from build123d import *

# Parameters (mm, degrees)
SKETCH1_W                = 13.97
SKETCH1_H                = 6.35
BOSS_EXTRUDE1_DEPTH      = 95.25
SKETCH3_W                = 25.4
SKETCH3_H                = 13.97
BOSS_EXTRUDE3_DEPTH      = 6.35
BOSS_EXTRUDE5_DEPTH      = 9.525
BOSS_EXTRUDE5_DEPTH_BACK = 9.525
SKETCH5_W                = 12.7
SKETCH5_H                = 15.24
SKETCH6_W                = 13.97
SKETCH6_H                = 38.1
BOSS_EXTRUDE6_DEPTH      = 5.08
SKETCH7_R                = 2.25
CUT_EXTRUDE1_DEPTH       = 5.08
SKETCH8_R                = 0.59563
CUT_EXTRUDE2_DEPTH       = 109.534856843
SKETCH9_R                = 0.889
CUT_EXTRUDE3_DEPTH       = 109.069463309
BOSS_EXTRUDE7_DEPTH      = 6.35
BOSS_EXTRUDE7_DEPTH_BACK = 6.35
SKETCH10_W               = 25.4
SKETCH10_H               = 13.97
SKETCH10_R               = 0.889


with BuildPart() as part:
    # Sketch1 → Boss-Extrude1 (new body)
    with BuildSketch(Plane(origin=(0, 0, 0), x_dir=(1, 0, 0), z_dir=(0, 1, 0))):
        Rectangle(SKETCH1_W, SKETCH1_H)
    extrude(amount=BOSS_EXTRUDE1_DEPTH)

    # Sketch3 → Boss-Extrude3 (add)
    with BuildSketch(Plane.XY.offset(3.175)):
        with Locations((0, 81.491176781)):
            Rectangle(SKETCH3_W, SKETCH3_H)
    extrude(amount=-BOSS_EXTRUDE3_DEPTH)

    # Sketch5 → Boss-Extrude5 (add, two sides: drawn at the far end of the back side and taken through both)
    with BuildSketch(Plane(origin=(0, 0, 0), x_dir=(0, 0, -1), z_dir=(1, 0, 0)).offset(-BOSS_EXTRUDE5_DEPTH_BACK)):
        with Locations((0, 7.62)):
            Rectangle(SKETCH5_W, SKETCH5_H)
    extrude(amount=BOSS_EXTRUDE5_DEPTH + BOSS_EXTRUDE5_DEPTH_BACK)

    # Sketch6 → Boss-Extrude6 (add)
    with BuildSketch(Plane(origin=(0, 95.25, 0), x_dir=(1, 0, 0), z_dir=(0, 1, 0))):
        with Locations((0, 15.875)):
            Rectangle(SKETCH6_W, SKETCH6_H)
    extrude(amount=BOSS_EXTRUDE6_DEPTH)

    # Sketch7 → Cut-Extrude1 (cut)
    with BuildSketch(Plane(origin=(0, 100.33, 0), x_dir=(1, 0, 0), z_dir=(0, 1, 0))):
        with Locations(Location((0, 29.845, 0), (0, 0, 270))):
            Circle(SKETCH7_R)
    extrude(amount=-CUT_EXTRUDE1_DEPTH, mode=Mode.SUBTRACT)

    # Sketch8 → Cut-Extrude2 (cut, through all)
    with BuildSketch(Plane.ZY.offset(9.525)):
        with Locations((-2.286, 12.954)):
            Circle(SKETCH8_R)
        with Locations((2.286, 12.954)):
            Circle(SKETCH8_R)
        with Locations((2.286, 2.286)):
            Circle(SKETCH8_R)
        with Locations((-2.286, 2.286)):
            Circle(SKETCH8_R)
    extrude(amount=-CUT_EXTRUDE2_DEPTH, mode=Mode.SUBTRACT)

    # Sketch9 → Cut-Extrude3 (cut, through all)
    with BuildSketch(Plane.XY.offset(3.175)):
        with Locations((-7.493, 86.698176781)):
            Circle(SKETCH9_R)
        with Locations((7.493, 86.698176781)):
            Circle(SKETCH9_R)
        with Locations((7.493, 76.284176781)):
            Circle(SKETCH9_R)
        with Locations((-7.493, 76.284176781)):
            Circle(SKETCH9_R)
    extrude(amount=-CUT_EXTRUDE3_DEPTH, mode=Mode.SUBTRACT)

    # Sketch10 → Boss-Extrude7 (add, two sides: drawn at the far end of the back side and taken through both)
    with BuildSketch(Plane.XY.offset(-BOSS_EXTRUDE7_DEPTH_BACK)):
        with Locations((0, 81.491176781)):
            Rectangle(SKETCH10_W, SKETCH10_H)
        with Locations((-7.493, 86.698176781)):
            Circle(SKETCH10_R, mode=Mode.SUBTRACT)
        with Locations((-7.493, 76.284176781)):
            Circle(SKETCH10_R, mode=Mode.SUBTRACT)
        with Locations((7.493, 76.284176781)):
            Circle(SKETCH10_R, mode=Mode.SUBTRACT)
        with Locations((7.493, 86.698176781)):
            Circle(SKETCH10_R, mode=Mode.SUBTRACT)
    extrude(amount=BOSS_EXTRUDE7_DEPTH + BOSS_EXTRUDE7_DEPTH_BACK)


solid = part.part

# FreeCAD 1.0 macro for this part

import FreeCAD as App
import Part
import Sketcher
Q = App.Units.Quantity

doc = App.newDocument("Part")
body = doc.addObject("PartDesign::Body", "Body")

sketch1 = doc.addObject("Sketcher::SketchObject", "Sketch")
body.addObject(sketch1)
sketch1.AttachmentSupport = (doc.XZ_Plane, [""])
sketch1.MapMode = "FlatFace"
sketch1.addGeometry([
    Part.LineSegment(App.Vector(-6.985, -3.175, 0), App.Vector(-6.985, 3.175, 0)),
    Part.LineSegment(App.Vector(-6.985, 3.175, 0), App.Vector(6.985, 3.175, 0)),
    Part.LineSegment(App.Vector(6.985, 3.175, 0), App.Vector(6.985, -3.175, 0)),
    Part.LineSegment(App.Vector(6.985, -3.175, 0), App.Vector(-6.985, -3.175, 0)),
], False)
sketch1.addConstraint([
    Sketcher.Constraint("Coincident", 0, 2, 1, 1),
    Sketcher.Constraint("Coincident", 1, 2, 2, 1),
    Sketcher.Constraint("Coincident", 2, 2, 3, 1),
    Sketcher.Constraint("Coincident", 3, 2, 0, 1),
    Sketcher.Constraint("Vertical", 0),
    Sketcher.Constraint("Horizontal", 1),
    Sketcher.Constraint("Vertical", 2),
    Sketcher.Constraint("Horizontal", 3),
    Sketcher.Constraint("Symmetric", 0, 2, 2, 2, -1, 1),
    Sketcher.Constraint("DistanceX", 1, 1, 1, 2, Q("0.55 in")),
    Sketcher.Constraint("DistanceY", 0, 1, 0, 2, Q("0.25 in")),
])
pad1 = doc.addObject("PartDesign::Pad", "Pad")
body.addObject(pad1)
pad1.Profile = sketch1
pad1.Length = Q("3.75 in")
pad1.Reversed = True

sketch2 = doc.addObject("Sketcher::SketchObject", "Sketch001")
body.addObject(sketch2)
sketch2.AttachmentSupport = (doc.XY_Plane, [""])
sketch2.MapMode = "FlatFace"
sketch2.AttachmentOffset = App.Placement(App.Vector(0, 0, 0.125 * 25.4), App.Rotation())
sketch2.addGeometry([
    Part.LineSegment(App.Vector(-12.7, 88.476177, 0), App.Vector(-12.7, 74.506177, 0)),
    Part.LineSegment(App.Vector(-12.7, 74.506177, 0), App.Vector(12.7, 74.506177, 0)),
    Part.LineSegment(App.Vector(12.7, 74.506177, 0), App.Vector(12.7, 88.476177, 0)),
    Part.LineSegment(App.Vector(12.7, 88.476177, 0), App.Vector(-12.7, 88.476177, 0)),
], False)
sketch2.addConstraint([
    Sketcher.Constraint("Coincident", 0, 2, 1, 1),
    Sketcher.Constraint("Coincident", 1, 2, 2, 1),
    Sketcher.Constraint("Coincident", 2, 2, 3, 1),
    Sketcher.Constraint("Coincident", 3, 2, 0, 1),
    Sketcher.Constraint("Vertical", 0),
    Sketcher.Constraint("Horizontal", 1),
    Sketcher.Constraint("Vertical", 2),
    Sketcher.Constraint("Horizontal", 3),
    Sketcher.Constraint("DistanceX", 1, 1, 1, 2, Q("1 in")),
    Sketcher.Constraint("DistanceY", 0, 2, 0, 1, Q("0.55 in")),
    Sketcher.Constraint("DistanceX", 0, 2, -1, 1, Q("0.5 in")),
    Sketcher.Constraint("DistanceY", -1, 1, 0, 2, Q("74.506177 mm")),
])
pad2 = doc.addObject("PartDesign::Pad", "Pad001")
body.addObject(pad2)
pad2.Profile = sketch2
pad2.Length = Q("0.25 in")
pad2.Reversed = True

sketch3 = doc.addObject("Sketcher::SketchObject", "Sketch002")
body.addObject(sketch3)
sketch3.AttachmentSupport = (doc.YZ_Plane, [""])
sketch3.MapMode = "FlatFace"
sketch3.addGeometry([
    Part.LineSegment(App.Vector(15.24, 6.35, 0), App.Vector(0, 6.35, 0)),
    Part.LineSegment(App.Vector(0, 6.35, 0), App.Vector(0, -6.35, 0)),
    Part.LineSegment(App.Vector(0, -6.35, 0), App.Vector(15.24, -6.35, 0)),
    Part.LineSegment(App.Vector(15.24, -6.35, 0), App.Vector(15.24, 6.35, 0)),
], False)
sketch3.addConstraint([
    Sketcher.Constraint("Coincident", 0, 2, 1, 1),
    Sketcher.Constraint("Coincident", 1, 2, 2, 1),
    Sketcher.Constraint("Coincident", 2, 2, 3, 1),
    Sketcher.Constraint("Coincident", 3, 2, 0, 1),
    Sketcher.Constraint("Horizontal", 0),
    Sketcher.Constraint("Vertical", 1),
    Sketcher.Constraint("Horizontal", 2),
    Sketcher.Constraint("Vertical", 3),
    Sketcher.Constraint("Symmetric", 0, 2, 1, 2, -1, 1),
    Sketcher.Constraint("DistanceX", 0, 2, 0, 1, Q("0.6 in")),
    Sketcher.Constraint("DistanceY", 1, 2, 1, 1, Q("0.5 in")),
])
pad3 = doc.addObject("PartDesign::Pad", "Pad002")
body.addObject(pad3)
pad3.Profile = sketch3
pad3.Type = "TwoLengths"
pad3.Length = Q("0.375 in")
pad3.Length2 = Q("0.375 in")

sketch4 = doc.addObject("Sketcher::SketchObject", "Sketch003")
body.addObject(sketch4)
sketch4.AttachmentSupport = (doc.XZ_Plane, [""])
sketch4.MapMode = "FlatFace"
sketch4.AttachmentOffset = App.Placement(App.Vector(0, 0, -3.75 * 25.4), App.Rotation())
sketch4.addGeometry([
    Part.LineSegment(App.Vector(-6.985, -34.925, 0), App.Vector(-6.985, 3.175, 0)),
    Part.LineSegment(App.Vector(-6.985, 3.175, 0), App.Vector(6.985, 3.175, 0)),
    Part.LineSegment(App.Vector(6.985, 3.175, 0), App.Vector(6.985, -34.925, 0)),
    Part.LineSegment(App.Vector(6.985, -34.925, 0), App.Vector(-6.985, -34.925, 0)),
], False)
sketch4.addConstraint([
    Sketcher.Constraint("Coincident", 0, 2, 1, 1),
    Sketcher.Constraint("Coincident", 1, 2, 2, 1),
    Sketcher.Constraint("Coincident", 2, 2, 3, 1),
    Sketcher.Constraint("Coincident", 3, 2, 0, 1),
    Sketcher.Constraint("Vertical", 0),
    Sketcher.Constraint("Horizontal", 1),
    Sketcher.Constraint("Vertical", 2),
    Sketcher.Constraint("Horizontal", 3),
    Sketcher.Constraint("DistanceY", 0, 1, 0, 2, Q("1.5 in")),
    Sketcher.Constraint("DistanceX", 1, 1, 1, 2, Q("0.55 in")),
    Sketcher.Constraint("DistanceX", 0, 2, -1, 1, Q("0.275 in")),
    Sketcher.Constraint("DistanceY", -1, 1, 0, 2, Q("0.125 in")),
])
pad4 = doc.addObject("PartDesign::Pad", "Pad003")
body.addObject(pad4)
pad4.Profile = sketch4
pad4.Length = Q("0.2 in")
pad4.Reversed = True

sketch5 = doc.addObject("Sketcher::SketchObject", "Sketch004")
body.addObject(sketch5)
sketch5.AttachmentSupport = (doc.XZ_Plane, [""])
sketch5.MapMode = "FlatFace"
sketch5.AttachmentOffset = App.Placement(App.Vector(0, 0, -3.95 * 25.4), App.Rotation())
sketch5.addGeometry(Part.Circle(App.Vector(0, -29.845, 0), App.Vector(0, 0, 1), 2.25), False)
sketch5.addConstraint([
    Sketcher.Constraint("PointOnObject", 0, 3, -2),
    Sketcher.Constraint("Diameter", 0, Q("4.5 mm")),
    Sketcher.Constraint("DistanceY", 0, 3, -1, 1, Q("1.175 in")),
])
pocket1 = doc.addObject("PartDesign::Pocket", "Pocket")
body.addObject(pocket1)
pocket1.Profile = sketch5
pocket1.Length = Q("0.2 in")
pocket1.Reversed = True

sketch6 = doc.addObject("Sketcher::SketchObject", "Sketch005")
body.addObject(sketch6)
sketch6.AttachmentSupport = (doc.YZ_Plane, [""])
sketch6.MapMode = "FlatFace"
sketch6.AttachmentOffset = App.Placement(App.Vector(0, 0, -0.375 * 25.4), App.Rotation())
sketch6.addGeometry([
    Part.Circle(App.Vector(12.954, -2.286, 0), App.Vector(0, 0, 1), 0.59563),
    Part.Circle(App.Vector(12.954, 2.286, 0), App.Vector(0, 0, 1), 0.59563),
    Part.Circle(App.Vector(2.286, 2.286, 0), App.Vector(0, 0, 1), 0.59563),
    Part.Circle(App.Vector(2.286, -2.286, 0), App.Vector(0, 0, 1), 0.59563),
], False)
sketch6.addConstraint([
    Sketcher.Constraint("Equal", 0, 1),
    Sketcher.Constraint("Equal", 1, 2),
    Sketcher.Constraint("Equal", 2, 3),
    Sketcher.Constraint("Symmetric", 0, 3, 1, 3, -1),
    Sketcher.Constraint("Symmetric", 2, 3, 3, 3, -1),
    Sketcher.Constraint("Horizontal", 1, 3, 2, 3),
    Sketcher.Constraint("Diameter", 0, Q("0.0469 in")),
    Sketcher.Constraint("DistanceX", -1, 1, 0, 3, Q("0.51 in")),
    Sketcher.Constraint("DistanceY", 0, 3, -1, 1, Q("0.09 in")),
    Sketcher.Constraint("DistanceX", -1, 1, 2, 3, Q("0.09 in")),
])
pocket2 = doc.addObject("PartDesign::Pocket", "Pocket001")
body.addObject(pocket2)
pocket2.Profile = sketch6
pocket2.Type = "ThroughAll"
pocket2.Reversed = True

sketch7 = doc.addObject("Sketcher::SketchObject", "Sketch006")
body.addObject(sketch7)
sketch7.AttachmentSupport = (doc.XY_Plane, [""])
sketch7.MapMode = "FlatFace"
sketch7.AttachmentOffset = App.Placement(App.Vector(0, 0, 0.125 * 25.4), App.Rotation())
sketch7.addGeometry([
    Part.Circle(App.Vector(-7.493, 86.698177, 0), App.Vector(0, 0, 1), 0.889),
    Part.Circle(App.Vector(7.493, 86.698177, 0), App.Vector(0, 0, 1), 0.889),
    Part.Circle(App.Vector(7.493, 76.284177, 0), App.Vector(0, 0, 1), 0.889),
    Part.Circle(App.Vector(-7.493, 76.284177, 0), App.Vector(0, 0, 1), 0.889),
], False)
sketch7.addConstraint([
    Sketcher.Constraint("Equal", 0, 1),
    Sketcher.Constraint("Equal", 1, 2),
    Sketcher.Constraint("Equal", 2, 3),
    Sketcher.Constraint("Symmetric", 0, 3, 1, 3, -2),
    Sketcher.Constraint("Symmetric", 2, 3, 3, 3, -2),
    Sketcher.Constraint("Vertical", 1, 3, 2, 3),
    Sketcher.Constraint("Diameter", 0, Q("0.07 in")),
    Sketcher.Constraint("DistanceX", 0, 3, 1, 3, Q("0.59 in")),
    Sketcher.Constraint("DistanceY", 2, 3, 1, 3, Q("0.41 in")),
    Sketcher.Constraint("DistanceY", -1, 1, 0, 3, Q("86.698177 mm")),
])
pocket3 = doc.addObject("PartDesign::Pocket", "Pocket002")
body.addObject(pocket3)
pocket3.Profile = sketch7
pocket3.Type = "ThroughAll"

sketch8 = doc.addObject("Sketcher::SketchObject", "Sketch007")
body.addObject(sketch8)
sketch8.AttachmentSupport = (doc.XY_Plane, [""])
sketch8.MapMode = "FlatFace"
sketch8.addGeometry([
    Part.LineSegment(App.Vector(-12.7, 88.476177, 0), App.Vector(-12.7, 74.506177, 0)),
    Part.LineSegment(App.Vector(-12.7, 74.506177, 0), App.Vector(12.7, 74.506177, 0)),
    Part.LineSegment(App.Vector(12.7, 74.506177, 0), App.Vector(12.7, 88.476177, 0)),
    Part.LineSegment(App.Vector(12.7, 88.476177, 0), App.Vector(-12.7, 88.476177, 0)),
    Part.Circle(App.Vector(-7.493, 76.284177, 0), App.Vector(0, 0, 1), 0.889),
    Part.Circle(App.Vector(7.493, 76.284177, 0), App.Vector(0, 0, 1), 0.889),
    Part.Circle(App.Vector(-7.493, 86.698177, 0), App.Vector(0, 0, 1), 0.889),
    Part.Circle(App.Vector(7.493, 86.698177, 0), App.Vector(0, 0, 1), 0.889),
], False)
sketch8.addConstraint([
    Sketcher.Constraint("Coincident", 0, 2, 1, 1),
    Sketcher.Constraint("Coincident", 1, 2, 2, 1),
    Sketcher.Constraint("Coincident", 2, 2, 3, 1),
    Sketcher.Constraint("Coincident", 3, 2, 0, 1),
    Sketcher.Constraint("Vertical", 0),
    Sketcher.Constraint("Horizontal", 1),
    Sketcher.Constraint("Vertical", 2),
    Sketcher.Constraint("Horizontal", 3),
    Sketcher.Constraint("Equal", 4, 5),
    Sketcher.Constraint("Equal", 5, 6),
    Sketcher.Constraint("Equal", 6, 7),
    Sketcher.Constraint("Symmetric", 4, 3, 5, 3, -2),
    Sketcher.Constraint("Symmetric", 6, 3, 7, 3, -2),
    Sketcher.Constraint("Vertical", 4, 3, 6, 3),
    Sketcher.Constraint("Diameter", 4, Q("0.07 in")),
    Sketcher.Constraint("DistanceX", 1, 1, 1, 2, Q("1 in")),
    Sketcher.Constraint("DistanceY", 0, 2, 0, 1, Q("0.55 in")),
    Sketcher.Constraint("DistanceX", 0, 2, -1, 1, Q("0.5 in")),
    Sketcher.Constraint("DistanceX", 4, 3, 5, 3, Q("0.59 in")),
    Sketcher.Constraint("DistanceY", 4, 3, 6, 3, Q("0.41 in")),
    Sketcher.Constraint("DistanceY", 0, 2, 4, 3, Q("0.07 in")),
    Sketcher.Constraint("DistanceY", -1, 1, 4, 3, Q("76.284177 mm")),
])
pad5 = doc.addObject("PartDesign::Pad", "Pad004")
body.addObject(pad5)
pad5.Profile = sketch8
pad5.Type = "TwoLengths"
pad5.Length = Q("0.25 in")
pad5.Length2 = Q("0.25 in")

doc.recompute()
